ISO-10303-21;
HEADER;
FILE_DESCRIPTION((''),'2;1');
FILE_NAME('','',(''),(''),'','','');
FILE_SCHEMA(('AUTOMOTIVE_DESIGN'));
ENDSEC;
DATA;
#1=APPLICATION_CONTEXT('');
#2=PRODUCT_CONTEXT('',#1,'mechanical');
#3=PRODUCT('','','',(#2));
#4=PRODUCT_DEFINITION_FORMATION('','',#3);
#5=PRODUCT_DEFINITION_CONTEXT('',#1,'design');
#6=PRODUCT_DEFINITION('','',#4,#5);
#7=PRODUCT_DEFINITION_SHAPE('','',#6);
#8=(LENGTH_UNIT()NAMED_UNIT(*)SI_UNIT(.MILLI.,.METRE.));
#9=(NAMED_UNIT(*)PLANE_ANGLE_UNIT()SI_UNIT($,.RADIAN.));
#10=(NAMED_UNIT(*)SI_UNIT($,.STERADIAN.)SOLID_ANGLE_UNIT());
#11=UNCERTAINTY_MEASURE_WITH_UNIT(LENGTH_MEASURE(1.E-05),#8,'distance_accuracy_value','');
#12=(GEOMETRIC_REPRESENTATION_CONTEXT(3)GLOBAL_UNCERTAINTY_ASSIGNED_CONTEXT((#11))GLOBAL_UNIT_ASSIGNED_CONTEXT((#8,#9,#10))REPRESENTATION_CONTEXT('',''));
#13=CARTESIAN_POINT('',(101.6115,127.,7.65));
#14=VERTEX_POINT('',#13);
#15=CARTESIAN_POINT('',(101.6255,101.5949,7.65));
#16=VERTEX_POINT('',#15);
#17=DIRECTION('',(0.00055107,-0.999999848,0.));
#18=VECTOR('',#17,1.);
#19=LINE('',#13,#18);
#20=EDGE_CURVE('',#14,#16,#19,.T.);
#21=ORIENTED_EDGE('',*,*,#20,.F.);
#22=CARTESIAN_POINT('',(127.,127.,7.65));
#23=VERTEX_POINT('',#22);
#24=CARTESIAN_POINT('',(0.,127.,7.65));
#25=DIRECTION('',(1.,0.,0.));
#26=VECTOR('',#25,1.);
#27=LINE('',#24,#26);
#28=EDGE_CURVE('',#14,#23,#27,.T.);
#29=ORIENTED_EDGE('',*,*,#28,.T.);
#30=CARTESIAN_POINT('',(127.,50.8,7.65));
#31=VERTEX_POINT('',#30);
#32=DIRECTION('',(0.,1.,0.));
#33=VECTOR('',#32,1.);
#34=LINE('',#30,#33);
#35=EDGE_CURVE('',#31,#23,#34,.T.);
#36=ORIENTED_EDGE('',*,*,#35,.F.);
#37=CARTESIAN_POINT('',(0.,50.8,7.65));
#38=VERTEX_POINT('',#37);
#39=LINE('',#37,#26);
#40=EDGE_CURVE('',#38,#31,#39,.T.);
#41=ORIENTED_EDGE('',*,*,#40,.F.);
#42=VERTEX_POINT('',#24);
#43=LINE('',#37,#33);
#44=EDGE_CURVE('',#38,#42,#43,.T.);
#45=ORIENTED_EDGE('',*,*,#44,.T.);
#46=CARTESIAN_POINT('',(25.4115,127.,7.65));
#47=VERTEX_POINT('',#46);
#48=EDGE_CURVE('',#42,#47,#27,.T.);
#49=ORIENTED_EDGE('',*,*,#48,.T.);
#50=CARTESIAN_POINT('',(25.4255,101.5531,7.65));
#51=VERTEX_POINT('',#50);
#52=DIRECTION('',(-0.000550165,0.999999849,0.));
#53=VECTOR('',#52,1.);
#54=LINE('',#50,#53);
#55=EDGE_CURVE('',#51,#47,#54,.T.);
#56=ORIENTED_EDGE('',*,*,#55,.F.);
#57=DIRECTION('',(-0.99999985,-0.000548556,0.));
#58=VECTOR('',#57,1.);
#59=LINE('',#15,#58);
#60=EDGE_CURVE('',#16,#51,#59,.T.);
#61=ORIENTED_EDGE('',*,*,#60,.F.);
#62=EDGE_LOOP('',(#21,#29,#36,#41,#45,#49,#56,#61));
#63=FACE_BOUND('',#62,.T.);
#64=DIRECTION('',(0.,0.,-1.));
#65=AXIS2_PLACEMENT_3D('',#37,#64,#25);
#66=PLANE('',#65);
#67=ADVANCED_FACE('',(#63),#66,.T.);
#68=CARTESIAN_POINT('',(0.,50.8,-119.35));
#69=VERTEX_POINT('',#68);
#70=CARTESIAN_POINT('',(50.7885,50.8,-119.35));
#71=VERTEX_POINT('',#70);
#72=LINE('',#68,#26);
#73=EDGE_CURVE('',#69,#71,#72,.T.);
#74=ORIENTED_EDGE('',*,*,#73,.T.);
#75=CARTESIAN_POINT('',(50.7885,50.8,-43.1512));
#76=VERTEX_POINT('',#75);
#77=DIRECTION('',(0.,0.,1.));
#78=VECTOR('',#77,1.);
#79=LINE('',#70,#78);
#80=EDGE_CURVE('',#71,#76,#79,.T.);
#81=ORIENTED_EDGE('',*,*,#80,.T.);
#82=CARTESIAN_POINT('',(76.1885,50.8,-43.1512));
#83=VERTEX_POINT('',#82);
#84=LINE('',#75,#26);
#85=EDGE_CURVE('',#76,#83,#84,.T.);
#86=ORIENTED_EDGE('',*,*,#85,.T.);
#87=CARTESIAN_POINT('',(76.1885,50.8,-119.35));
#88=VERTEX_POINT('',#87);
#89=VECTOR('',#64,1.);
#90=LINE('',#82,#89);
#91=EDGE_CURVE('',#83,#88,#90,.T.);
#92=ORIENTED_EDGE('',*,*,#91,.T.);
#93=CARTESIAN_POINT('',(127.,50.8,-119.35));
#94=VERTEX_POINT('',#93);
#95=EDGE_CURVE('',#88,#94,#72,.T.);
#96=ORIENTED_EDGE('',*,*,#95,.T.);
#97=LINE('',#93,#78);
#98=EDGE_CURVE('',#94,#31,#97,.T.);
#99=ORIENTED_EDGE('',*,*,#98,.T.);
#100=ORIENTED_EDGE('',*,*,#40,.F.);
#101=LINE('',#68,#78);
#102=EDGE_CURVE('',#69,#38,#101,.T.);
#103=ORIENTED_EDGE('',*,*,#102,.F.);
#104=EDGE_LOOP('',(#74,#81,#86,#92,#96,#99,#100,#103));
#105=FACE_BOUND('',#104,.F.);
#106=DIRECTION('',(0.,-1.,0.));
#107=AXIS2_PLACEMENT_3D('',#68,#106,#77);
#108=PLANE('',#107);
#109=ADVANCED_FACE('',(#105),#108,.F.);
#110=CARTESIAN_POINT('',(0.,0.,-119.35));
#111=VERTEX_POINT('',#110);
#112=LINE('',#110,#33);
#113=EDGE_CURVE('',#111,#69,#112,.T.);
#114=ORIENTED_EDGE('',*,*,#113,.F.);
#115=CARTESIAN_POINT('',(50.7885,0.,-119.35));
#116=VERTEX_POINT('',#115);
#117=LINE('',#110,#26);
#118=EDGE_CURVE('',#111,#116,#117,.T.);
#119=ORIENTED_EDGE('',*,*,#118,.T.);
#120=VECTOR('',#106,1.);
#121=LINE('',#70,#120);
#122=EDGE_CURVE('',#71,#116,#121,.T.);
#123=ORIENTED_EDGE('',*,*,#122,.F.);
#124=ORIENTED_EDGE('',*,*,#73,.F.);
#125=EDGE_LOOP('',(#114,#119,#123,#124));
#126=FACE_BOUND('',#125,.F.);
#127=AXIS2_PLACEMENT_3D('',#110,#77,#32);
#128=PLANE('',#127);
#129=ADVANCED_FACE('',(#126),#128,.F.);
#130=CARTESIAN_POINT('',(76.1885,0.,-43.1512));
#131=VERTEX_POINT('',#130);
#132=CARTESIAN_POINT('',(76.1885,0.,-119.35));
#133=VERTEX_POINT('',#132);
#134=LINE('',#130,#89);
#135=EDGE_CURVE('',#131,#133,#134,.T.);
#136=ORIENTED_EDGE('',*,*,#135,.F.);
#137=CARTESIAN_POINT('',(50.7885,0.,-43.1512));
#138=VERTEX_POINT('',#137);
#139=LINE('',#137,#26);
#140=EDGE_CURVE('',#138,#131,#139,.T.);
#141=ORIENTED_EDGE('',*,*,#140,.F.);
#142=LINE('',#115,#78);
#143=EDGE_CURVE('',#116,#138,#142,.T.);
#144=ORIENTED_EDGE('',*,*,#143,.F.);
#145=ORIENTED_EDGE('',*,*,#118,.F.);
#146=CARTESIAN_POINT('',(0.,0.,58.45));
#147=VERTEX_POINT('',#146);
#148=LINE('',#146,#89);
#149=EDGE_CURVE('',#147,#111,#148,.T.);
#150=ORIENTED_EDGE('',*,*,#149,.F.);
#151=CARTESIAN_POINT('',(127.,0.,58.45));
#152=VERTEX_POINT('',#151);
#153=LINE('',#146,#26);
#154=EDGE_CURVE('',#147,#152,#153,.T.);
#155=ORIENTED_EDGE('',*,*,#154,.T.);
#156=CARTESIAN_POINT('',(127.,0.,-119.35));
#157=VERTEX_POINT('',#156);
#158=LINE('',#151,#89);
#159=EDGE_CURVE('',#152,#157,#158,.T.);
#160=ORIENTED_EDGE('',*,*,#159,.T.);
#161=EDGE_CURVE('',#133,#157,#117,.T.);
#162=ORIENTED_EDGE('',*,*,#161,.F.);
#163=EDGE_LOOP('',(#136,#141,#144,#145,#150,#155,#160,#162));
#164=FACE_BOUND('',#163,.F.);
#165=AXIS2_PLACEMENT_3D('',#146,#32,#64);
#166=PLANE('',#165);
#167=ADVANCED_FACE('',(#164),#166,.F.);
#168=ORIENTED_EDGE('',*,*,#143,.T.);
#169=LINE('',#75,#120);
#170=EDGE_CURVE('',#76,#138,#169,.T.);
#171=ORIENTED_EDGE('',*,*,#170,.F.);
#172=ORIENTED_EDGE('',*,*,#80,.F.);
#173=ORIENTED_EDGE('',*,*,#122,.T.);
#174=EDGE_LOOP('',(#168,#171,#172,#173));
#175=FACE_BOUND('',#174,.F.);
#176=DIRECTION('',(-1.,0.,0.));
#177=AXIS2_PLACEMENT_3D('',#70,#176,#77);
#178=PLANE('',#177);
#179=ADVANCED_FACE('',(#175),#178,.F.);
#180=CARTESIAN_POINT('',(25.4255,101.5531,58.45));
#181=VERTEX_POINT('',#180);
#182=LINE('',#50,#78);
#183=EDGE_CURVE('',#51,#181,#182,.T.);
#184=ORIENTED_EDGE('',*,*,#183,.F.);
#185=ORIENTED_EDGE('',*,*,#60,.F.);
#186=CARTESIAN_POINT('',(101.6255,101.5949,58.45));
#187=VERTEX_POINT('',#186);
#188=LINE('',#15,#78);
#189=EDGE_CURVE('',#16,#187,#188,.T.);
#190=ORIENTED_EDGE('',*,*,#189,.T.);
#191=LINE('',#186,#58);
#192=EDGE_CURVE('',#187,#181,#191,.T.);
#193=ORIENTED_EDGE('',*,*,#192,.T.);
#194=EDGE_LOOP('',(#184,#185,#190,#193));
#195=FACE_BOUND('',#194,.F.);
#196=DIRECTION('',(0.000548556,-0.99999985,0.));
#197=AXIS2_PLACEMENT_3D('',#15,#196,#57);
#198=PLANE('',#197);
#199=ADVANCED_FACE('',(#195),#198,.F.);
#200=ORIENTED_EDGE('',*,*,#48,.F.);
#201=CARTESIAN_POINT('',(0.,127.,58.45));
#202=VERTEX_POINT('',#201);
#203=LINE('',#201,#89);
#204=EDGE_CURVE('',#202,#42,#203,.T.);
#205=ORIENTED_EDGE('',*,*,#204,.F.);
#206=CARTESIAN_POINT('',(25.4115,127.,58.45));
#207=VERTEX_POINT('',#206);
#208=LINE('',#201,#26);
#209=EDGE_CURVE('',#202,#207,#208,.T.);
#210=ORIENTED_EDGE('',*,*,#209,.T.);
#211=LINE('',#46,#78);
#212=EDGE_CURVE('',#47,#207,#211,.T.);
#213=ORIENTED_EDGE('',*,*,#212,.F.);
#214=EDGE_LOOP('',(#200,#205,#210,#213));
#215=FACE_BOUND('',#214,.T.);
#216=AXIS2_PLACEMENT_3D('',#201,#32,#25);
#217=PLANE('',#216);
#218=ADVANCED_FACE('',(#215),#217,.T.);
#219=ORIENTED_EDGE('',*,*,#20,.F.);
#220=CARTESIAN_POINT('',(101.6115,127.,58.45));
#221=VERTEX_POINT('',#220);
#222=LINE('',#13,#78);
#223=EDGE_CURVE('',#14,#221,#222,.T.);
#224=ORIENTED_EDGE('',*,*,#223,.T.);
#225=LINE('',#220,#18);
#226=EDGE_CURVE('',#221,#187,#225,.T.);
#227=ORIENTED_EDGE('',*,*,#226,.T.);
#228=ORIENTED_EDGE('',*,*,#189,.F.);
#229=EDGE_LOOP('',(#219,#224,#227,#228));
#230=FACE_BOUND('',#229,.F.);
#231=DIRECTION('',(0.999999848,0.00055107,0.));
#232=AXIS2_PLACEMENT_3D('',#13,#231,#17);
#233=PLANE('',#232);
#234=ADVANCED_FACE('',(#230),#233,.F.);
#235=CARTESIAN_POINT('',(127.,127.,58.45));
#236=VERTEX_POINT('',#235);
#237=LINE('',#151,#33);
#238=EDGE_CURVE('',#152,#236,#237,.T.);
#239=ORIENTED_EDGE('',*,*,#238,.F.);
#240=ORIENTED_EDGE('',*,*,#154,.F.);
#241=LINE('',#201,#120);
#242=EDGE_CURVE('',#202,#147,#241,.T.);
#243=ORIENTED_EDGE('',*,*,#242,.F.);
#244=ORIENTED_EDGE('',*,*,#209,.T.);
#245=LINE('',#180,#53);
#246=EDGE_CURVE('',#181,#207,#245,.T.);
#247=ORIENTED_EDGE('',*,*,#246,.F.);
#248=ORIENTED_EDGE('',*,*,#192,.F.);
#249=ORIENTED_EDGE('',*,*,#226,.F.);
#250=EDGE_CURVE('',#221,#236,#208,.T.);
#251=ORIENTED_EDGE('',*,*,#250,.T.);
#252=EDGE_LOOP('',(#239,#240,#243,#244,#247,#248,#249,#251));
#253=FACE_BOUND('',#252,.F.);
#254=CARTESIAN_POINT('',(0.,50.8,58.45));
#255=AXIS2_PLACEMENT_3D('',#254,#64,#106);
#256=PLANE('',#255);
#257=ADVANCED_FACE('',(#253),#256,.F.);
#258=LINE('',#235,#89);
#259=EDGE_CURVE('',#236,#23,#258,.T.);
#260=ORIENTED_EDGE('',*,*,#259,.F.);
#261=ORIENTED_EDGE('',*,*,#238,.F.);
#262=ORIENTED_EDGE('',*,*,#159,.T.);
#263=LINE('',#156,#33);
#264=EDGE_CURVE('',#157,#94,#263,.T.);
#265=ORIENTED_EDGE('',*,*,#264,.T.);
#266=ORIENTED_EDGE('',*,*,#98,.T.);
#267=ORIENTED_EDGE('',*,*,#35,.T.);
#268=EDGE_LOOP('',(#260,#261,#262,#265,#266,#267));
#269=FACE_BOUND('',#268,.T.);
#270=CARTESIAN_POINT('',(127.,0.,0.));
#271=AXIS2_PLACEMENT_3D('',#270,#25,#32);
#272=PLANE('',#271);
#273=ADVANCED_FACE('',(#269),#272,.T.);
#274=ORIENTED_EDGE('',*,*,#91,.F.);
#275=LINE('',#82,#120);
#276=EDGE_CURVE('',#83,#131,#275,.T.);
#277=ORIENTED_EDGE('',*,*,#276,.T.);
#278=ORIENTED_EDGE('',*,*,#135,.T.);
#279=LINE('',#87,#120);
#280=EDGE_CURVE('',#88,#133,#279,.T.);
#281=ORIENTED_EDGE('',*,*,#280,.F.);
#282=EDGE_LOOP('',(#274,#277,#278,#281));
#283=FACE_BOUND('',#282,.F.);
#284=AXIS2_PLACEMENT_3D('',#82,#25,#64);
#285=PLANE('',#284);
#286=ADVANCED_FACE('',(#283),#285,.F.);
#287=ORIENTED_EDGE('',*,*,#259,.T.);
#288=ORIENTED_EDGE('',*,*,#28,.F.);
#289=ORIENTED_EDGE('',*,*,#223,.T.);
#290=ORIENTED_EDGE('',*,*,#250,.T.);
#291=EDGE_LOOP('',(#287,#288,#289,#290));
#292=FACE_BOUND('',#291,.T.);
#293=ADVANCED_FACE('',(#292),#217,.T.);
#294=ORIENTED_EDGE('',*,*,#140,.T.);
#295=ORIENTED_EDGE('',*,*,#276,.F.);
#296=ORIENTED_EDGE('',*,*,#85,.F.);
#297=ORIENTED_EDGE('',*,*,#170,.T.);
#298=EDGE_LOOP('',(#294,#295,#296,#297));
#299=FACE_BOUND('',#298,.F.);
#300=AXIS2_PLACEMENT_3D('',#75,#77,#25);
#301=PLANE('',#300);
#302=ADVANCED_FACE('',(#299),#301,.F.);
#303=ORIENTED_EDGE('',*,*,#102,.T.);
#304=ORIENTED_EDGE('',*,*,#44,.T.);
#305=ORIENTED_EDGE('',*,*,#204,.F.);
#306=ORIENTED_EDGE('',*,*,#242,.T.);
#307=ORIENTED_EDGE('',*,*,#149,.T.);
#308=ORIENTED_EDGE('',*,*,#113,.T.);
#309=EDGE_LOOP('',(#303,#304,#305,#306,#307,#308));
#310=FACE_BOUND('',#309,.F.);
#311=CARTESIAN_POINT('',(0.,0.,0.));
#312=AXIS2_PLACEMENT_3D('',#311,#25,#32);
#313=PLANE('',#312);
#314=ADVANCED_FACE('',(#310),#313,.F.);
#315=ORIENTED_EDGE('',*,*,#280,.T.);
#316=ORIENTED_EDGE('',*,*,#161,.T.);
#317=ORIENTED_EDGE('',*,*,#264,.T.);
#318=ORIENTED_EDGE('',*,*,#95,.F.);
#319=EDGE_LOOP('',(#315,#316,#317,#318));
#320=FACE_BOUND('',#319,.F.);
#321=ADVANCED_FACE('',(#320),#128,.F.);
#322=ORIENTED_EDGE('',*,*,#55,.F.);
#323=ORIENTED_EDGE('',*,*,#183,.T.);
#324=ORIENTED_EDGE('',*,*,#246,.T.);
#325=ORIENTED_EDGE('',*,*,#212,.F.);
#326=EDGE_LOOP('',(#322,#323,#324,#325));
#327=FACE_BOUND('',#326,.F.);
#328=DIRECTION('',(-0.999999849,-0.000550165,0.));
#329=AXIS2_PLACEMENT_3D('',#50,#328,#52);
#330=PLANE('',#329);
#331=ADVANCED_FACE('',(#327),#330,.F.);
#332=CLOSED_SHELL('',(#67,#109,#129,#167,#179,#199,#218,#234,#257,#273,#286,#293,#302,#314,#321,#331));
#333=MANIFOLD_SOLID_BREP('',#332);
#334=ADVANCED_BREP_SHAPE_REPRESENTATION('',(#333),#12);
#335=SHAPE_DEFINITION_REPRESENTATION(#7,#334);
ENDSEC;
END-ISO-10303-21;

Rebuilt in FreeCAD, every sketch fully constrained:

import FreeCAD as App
import Part
import Sketcher
from FreeCAD import Vector
Q = App.Units.Quantity

doc = App.newDocument("Part")
body = doc.addObject("PartDesign::Body", "Body")

# Sketch on YZ plane
sketch1 = body.newObject("Sketcher::SketchObject", "Sketch")
sketch1.AttachmentSupport = (doc.getObject("YZ_Plane"), [""])
sketch1.MapMode = "FlatFace"
sketch1.addGeometry(Part.LineSegment(Vector(50.8, 58.45, 0), Vector(0, 58.45, 0)), False)
sketch1.addGeometry(Part.LineSegment(Vector(0, 58.45, 0), Vector(0, -119.35, 0)), False)
sketch1.addGeometry(Part.LineSegment(Vector(0, -119.35, 0), Vector(50.8, -119.35, 0)), False)
sketch1.addGeometry(Part.LineSegment(Vector(50.8, -119.35, 0), Vector(50.8, 58.45, 0)), False)
sketch1.addConstraint(Sketcher.Constraint("Coincident", 0, 2, 1, 1))
sketch1.addConstraint(Sketcher.Constraint("Coincident", 1, 2, 2, 1))
sketch1.addConstraint(Sketcher.Constraint("Coincident", 2, 2, 3, 1))
sketch1.addConstraint(Sketcher.Constraint("Coincident", 3, 2, 0, 1))
sketch1.addConstraint(Sketcher.Constraint("Horizontal", 0))
sketch1.addConstraint(Sketcher.Constraint("Vertical", 1))
sketch1.addConstraint(Sketcher.Constraint("Horizontal", 2))
sketch1.addConstraint(Sketcher.Constraint("Vertical", 3))
sketch1.addConstraint(Sketcher.Constraint("PointOnObject", 0, 2, -2))
sketch1.addConstraint(Sketcher.Constraint("DistanceX", 0, 2, 0, 1, Q("2 in")))
sketch1.addConstraint(Sketcher.Constraint("DistanceY", 1, 2, 1, 1, Q("7 in")))
sketch1.addConstraint(Sketcher.Constraint("DistanceY", -1, 1, 0, 2, 58.45))
pad1 = body.newObject("PartDesign::Pad", "Pad")
pad1.Profile = sketch1
pad1.Length = Q("5 in")

# Sketch on XZ plane
sketch2 = body.newObject("Sketcher::SketchObject", "Sketch001")
sketch2.AttachmentSupport = (doc.getObject("XZ_Plane"), [""])
sketch2.MapMode = "FlatFace"
sketch2.AttachmentOffset = App.Placement(Vector(0, 0, -2 * 25.4), App.Rotation())
sketch2.addGeometry(Part.LineSegment(Vector(0, 7.65, 0), Vector(0, 58.45, 0)), False)
sketch2.addGeometry(Part.LineSegment(Vector(0, 58.45, 0), Vector(127, 58.45, 0)), False)
sketch2.addGeometry(Part.LineSegment(Vector(127, 58.45, 0), Vector(127, 7.65, 0)), False)
sketch2.addGeometry(Part.LineSegment(Vector(127, 7.65, 0), Vector(0, 7.65, 0)), False)
sketch2.addConstraint(Sketcher.Constraint("Coincident", 0, 2, 1, 1))
sketch2.addConstraint(Sketcher.Constraint("Coincident", 1, 2, 2, 1))
sketch2.addConstraint(Sketcher.Constraint("Coincident", 2, 2, 3, 1))
sketch2.addConstraint(Sketcher.Constraint("Coincident", 3, 2, 0, 1))
sketch2.addConstraint(Sketcher.Constraint("Vertical", 0))
sketch2.addConstraint(Sketcher.Constraint("Horizontal", 1))
sketch2.addConstraint(Sketcher.Constraint("Vertical", 2))
sketch2.addConstraint(Sketcher.Constraint("Horizontal", 3))
sketch2.addConstraint(Sketcher.Constraint("PointOnObject", 0, 2, -2))
sketch2.addConstraint(Sketcher.Constraint("DistanceY", 0, 1, 0, 2, Q("2 in")))
sketch2.addConstraint(Sketcher.Constraint("DistanceX", 1, 1, 1, 2, Q("5 in")))
sketch2.addConstraint(Sketcher.Constraint("DistanceY", -1, 1, 0, 2, 58.45))
pad2 = body.newObject("PartDesign::Pad", "Pad001")
pad2.Profile = sketch2
pad2.Length = Q("3 in")
pad2.Reversed = True

# Sketch on XZ plane
sketch3 = body.newObject("Sketcher::SketchObject", "Sketch002")
sketch3.AttachmentSupport = (doc.getObject("XZ_Plane"), [""])
sketch3.MapMode = "FlatFace"
sketch3.AttachmentOffset = App.Placement(Vector(0, 0, -2 * 25.4), App.Rotation())
sketch3.addGeometry(Part.LineSegment(Vector(76.1885, -119.35, 0), Vector(50.7885, -119.35, 0)), False)
sketch3.addGeometry(Part.LineSegment(Vector(50.7885, -119.35, 0), Vector(50.7885, -43.1512, 0)), False)
sketch3.addGeometry(Part.LineSegment(Vector(50.7885, -43.1512, 0), Vector(76.1885, -43.1512, 0)), False)
sketch3.addGeometry(Part.LineSegment(Vector(76.1885, -43.1512, 0), Vector(76.1885, -119.35, 0)), False)
sketch3.addConstraint(Sketcher.Constraint("Coincident", 0, 2, 1, 1))
sketch3.addConstraint(Sketcher.Constraint("Coincident", 1, 2, 2, 1))
sketch3.addConstraint(Sketcher.Constraint("Coincident", 2, 2, 3, 1))
sketch3.addConstraint(Sketcher.Constraint("Coincident", 3, 2, 0, 1))
sketch3.addConstraint(Sketcher.Constraint("Horizontal", 0))
sketch3.addConstraint(Sketcher.Constraint("Vertical", 1))
sketch3.addConstraint(Sketcher.Constraint("Horizontal", 2))
sketch3.addConstraint(Sketcher.Constraint("Vertical", 3))
sketch3.addConstraint(Sketcher.Constraint("DistanceX", 0, 2, 0, 1, Q("1 in")))
sketch3.addConstraint(Sketcher.Constraint("DistanceY", 1, 1, 1, 2, 76.1988))
sketch3.addConstraint(Sketcher.Constraint("DistanceX", -1, 1, 0, 2, 50.7885))
sketch3.addConstraint(Sketcher.Constraint("DistanceY", 0, 2, -1, 1, 119.35))
pocket1 = body.newObject("PartDesign::Pocket", "Pocket")
pocket1.Profile = sketch3
pocket1.Length = Q("2 in")
pocket1.Reversed = True

# Sketch on XY plane
sketch4 = body.newObject("Sketcher::SketchObject", "Sketch003")
sketch4.AttachmentSupport = (doc.getObject("XY_Plane"), [""])
sketch4.MapMode = "FlatFace"
sketch4.AttachmentOffset = App.Placement(Vector(0, 0, 7.65), App.Rotation())
sketch4.addGeometry(Part.LineSegment(Vector(25.4115, 127, 0), Vector(101.6115, 127, 0)), False)
sketch4.addGeometry(Part.LineSegment(Vector(101.6115, 127, 0), Vector(101.6255, 101.5949, 0)), False)
sketch4.addGeometry(Part.LineSegment(Vector(101.6255, 101.5949, 0), Vector(25.4255, 101.5531, 0)), False)
sketch4.addGeometry(Part.LineSegment(Vector(25.4255, 101.5531, 0), Vector(25.4115, 127, 0)), False)
sketch4.addConstraint(Sketcher.Constraint("Coincident", 0, 2, 1, 1))
sketch4.addConstraint(Sketcher.Constraint("Coincident", 1, 2, 2, 1))
sketch4.addConstraint(Sketcher.Constraint("Coincident", 2, 2, 3, 1))
sketch4.addConstraint(Sketcher.Constraint("Coincident", 3, 2, 0, 1))
sketch4.addConstraint(Sketcher.Constraint("Horizontal", 0))
sketch4.addConstraint(Sketcher.Constraint("Perpendicular", 1, 2))
sketch4.addConstraint(Sketcher.Constraint("Perpendicular", 2, 3))
sketch4.addConstraint(Sketcher.Constraint("DistanceX", 0, 1, 0, 2, Q("3 in")))
sketch4.addConstraint(Sketcher.Constraint("DistanceY", -1, 1, 0, 2, Q("5 in")))
sketch4.addConstraint(Sketcher.Constraint("DistanceX", -1, 1, 1, 2, Q("4.001 in")))
sketch4.addConstraint(Sketcher.Constraint("Distance", 1, Q("1.0002 in")))
sketch4.addConstraint(Sketcher.Constraint("Distance", 3, 25.447))
pocket2 = body.newObject("PartDesign::Pocket", "Pocket001")
pocket2.Profile = sketch4
pocket2.Length = Q("2 in")
pocket2.Reversed = True

doc.recompute()
